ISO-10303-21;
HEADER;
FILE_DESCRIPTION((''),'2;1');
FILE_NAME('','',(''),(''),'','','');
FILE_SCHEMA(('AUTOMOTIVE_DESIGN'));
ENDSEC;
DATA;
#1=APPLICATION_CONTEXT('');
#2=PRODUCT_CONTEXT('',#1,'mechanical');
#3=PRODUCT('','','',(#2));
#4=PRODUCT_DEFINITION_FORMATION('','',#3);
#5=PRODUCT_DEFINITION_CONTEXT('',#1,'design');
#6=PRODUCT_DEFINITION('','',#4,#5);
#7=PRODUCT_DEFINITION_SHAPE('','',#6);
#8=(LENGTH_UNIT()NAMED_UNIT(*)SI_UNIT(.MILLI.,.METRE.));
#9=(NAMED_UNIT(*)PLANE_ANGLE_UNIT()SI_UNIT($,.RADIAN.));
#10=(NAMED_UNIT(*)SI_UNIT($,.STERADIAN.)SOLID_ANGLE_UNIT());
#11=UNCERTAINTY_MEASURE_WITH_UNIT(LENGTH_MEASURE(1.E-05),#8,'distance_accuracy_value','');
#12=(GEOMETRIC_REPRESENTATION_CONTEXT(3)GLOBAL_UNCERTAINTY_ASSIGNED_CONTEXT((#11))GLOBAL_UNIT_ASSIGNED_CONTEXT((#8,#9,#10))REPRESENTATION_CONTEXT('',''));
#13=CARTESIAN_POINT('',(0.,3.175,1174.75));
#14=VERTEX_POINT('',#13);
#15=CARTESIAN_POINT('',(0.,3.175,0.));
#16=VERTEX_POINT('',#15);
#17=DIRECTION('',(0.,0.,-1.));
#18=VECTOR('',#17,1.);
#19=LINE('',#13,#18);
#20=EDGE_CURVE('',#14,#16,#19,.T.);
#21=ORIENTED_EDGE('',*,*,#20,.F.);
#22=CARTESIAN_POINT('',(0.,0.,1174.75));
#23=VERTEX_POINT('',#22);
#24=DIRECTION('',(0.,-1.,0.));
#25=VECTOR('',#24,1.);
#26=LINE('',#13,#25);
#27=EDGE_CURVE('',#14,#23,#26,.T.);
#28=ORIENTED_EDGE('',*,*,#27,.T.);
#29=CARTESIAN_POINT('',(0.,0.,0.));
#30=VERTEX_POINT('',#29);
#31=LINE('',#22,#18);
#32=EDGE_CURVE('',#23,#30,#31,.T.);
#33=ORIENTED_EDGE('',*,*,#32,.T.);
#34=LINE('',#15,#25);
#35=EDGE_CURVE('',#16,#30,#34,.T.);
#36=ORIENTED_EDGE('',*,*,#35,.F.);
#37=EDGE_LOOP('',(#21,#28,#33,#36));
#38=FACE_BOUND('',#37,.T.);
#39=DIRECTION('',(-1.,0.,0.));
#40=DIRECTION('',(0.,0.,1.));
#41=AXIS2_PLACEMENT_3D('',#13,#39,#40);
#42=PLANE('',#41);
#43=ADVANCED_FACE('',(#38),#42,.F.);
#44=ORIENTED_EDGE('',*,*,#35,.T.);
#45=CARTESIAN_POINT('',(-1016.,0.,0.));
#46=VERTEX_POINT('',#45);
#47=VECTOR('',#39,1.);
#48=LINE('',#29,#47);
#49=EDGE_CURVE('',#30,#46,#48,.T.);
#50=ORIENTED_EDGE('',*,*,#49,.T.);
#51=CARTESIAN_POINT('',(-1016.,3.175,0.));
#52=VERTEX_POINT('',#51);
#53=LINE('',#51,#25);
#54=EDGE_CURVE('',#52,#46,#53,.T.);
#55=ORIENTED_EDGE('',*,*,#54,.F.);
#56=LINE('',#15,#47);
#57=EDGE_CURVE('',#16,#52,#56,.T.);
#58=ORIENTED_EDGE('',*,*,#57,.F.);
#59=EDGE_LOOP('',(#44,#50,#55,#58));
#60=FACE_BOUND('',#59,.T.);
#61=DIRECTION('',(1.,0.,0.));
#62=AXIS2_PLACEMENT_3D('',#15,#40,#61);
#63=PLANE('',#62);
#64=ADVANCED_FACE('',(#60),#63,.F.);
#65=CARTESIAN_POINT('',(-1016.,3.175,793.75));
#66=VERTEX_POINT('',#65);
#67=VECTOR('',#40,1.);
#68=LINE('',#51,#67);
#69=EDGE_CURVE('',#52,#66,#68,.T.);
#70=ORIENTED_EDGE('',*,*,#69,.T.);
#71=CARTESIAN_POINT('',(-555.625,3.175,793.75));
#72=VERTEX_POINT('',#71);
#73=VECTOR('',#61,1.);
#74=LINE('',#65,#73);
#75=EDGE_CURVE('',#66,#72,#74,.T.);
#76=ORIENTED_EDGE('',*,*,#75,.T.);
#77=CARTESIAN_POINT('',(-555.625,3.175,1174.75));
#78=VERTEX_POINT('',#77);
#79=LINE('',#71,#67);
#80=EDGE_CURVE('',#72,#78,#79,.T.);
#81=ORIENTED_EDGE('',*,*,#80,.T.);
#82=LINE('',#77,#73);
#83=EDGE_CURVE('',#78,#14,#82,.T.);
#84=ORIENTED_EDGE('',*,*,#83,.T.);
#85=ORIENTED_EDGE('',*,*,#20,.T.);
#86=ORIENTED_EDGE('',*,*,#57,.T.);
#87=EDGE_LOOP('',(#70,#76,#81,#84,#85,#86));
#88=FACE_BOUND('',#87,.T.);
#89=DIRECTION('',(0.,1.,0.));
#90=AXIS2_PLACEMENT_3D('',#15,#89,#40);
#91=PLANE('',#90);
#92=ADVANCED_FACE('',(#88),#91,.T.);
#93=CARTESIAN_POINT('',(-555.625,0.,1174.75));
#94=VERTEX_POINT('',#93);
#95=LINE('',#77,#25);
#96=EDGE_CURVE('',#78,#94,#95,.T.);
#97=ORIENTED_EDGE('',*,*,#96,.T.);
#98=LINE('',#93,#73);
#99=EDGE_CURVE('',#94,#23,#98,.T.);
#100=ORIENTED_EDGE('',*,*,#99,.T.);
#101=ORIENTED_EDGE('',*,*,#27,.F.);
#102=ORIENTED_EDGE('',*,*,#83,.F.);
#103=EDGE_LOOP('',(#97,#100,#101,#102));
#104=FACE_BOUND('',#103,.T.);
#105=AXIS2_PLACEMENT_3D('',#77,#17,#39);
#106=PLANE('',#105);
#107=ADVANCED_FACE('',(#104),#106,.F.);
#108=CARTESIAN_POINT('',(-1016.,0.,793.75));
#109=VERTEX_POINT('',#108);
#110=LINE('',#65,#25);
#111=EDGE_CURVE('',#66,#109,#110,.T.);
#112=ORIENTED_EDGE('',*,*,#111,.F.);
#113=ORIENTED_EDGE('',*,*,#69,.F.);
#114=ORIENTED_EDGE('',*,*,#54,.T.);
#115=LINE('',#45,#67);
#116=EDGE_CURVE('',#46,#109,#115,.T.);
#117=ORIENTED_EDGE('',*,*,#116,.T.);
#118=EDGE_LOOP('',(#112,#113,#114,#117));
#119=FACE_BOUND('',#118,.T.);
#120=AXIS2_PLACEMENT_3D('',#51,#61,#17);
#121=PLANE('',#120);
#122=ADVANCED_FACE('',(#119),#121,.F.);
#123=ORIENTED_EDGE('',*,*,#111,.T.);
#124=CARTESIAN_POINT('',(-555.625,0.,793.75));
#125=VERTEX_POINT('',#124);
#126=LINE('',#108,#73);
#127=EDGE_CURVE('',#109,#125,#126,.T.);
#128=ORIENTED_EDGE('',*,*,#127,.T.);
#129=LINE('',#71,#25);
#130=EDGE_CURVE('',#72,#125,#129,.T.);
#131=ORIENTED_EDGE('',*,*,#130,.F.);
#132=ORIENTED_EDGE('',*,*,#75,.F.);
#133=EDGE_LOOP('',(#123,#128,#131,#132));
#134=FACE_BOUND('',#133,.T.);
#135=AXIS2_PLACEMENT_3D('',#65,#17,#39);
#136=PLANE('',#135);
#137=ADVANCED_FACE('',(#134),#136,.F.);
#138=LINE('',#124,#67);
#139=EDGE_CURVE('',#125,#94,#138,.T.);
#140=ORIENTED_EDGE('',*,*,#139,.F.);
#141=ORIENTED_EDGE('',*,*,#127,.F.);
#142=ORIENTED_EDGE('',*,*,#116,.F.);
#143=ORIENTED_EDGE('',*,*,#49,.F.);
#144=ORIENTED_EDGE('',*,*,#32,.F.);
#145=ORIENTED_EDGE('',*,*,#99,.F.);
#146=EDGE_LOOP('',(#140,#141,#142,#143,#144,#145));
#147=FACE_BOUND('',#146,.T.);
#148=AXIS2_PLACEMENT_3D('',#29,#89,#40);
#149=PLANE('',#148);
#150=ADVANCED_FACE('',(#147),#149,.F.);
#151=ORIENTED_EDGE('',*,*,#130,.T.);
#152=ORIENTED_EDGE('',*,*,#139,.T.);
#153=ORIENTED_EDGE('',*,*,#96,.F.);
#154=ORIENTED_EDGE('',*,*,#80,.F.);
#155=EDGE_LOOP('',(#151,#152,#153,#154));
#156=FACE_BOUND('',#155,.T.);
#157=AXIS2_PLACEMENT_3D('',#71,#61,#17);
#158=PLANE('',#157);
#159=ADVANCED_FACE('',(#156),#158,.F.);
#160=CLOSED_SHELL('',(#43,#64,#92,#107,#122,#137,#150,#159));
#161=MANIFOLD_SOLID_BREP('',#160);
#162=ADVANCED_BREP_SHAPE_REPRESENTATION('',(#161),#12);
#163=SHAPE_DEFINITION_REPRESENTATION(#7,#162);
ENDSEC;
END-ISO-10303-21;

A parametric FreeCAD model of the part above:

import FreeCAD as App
import Part
import Sketcher
from FreeCAD import Vector
Q = App.Units.Quantity

doc = App.newDocument("Part")
body = doc.addObject("PartDesign::Body", "Body")

# Sketch on XZ plane
sketch1 = doc.addObject("Sketcher::SketchObject", "Sketch")
body.addObject(sketch1)
sketch1.AttachmentSupport = (doc.XZ_Plane, [""])
sketch1.MapMode = "FlatFace"
sketch1.addGeometry([
    Part.LineSegment(Vector(0, 0, 0), Vector(-1016, 0, 0)),  # 0
    Part.LineSegment(Vector(-1016, 0, 0), Vector(-1016, 794, 0)),  # 1
    Part.LineSegment(Vector(-1016, 794, 0), Vector(-556, 794, 0)),  # 2
    Part.LineSegment(Vector(-556, 794, 0), Vector(-556, 1175, 0)),  # 3
    Part.LineSegment(Vector(-556, 1175, 0), Vector(0, 1175, 0)),  # 4
    Part.LineSegment(Vector(0, 1175, 0), Vector(0, 0, 0)),  # 5
], False)
sketch1.addConstraint([
    Sketcher.Constraint("Coincident", 0, 2, 1, 1),
    Sketcher.Constraint("Coincident", 1, 2, 2, 1),
    Sketcher.Constraint("Coincident", 2, 2, 3, 1),
    Sketcher.Constraint("Coincident", 3, 2, 4, 1),
    Sketcher.Constraint("Coincident", 4, 2, 5, 1),
    Sketcher.Constraint("Coincident", 5, 2, 0, 1),
    Sketcher.Constraint("Horizontal", 0),
    Sketcher.Constraint("Vertical", 1),
    Sketcher.Constraint("Horizontal", 2),
    Sketcher.Constraint("Vertical", 3),
    Sketcher.Constraint("Horizontal", 4),
    Sketcher.Constraint("Vertical", 5),
    Sketcher.Constraint("Coincident", 5, 2, -1, 1),
    Sketcher.Constraint("DistanceX", 0, 2, 0, 1, Q("40 in")),
    Sketcher.Constraint("DistanceY", 3, 1, 3, 2, Q("15 in")),
    Sketcher.Constraint("DistanceY", 1, 1, 1, 2, Q("31.25 in")),
    Sketcher.Constraint("DistanceX", 2, 1, 2, 2, Q("18.125 in")),
])
pad1 = doc.addObject("PartDesign::Pad", "Pad")
body.addObject(pad1)
pad1.Profile = sketch1
pad1.Length = Q("0.125 in")
pad1.Reversed = True

doc.recompute()
